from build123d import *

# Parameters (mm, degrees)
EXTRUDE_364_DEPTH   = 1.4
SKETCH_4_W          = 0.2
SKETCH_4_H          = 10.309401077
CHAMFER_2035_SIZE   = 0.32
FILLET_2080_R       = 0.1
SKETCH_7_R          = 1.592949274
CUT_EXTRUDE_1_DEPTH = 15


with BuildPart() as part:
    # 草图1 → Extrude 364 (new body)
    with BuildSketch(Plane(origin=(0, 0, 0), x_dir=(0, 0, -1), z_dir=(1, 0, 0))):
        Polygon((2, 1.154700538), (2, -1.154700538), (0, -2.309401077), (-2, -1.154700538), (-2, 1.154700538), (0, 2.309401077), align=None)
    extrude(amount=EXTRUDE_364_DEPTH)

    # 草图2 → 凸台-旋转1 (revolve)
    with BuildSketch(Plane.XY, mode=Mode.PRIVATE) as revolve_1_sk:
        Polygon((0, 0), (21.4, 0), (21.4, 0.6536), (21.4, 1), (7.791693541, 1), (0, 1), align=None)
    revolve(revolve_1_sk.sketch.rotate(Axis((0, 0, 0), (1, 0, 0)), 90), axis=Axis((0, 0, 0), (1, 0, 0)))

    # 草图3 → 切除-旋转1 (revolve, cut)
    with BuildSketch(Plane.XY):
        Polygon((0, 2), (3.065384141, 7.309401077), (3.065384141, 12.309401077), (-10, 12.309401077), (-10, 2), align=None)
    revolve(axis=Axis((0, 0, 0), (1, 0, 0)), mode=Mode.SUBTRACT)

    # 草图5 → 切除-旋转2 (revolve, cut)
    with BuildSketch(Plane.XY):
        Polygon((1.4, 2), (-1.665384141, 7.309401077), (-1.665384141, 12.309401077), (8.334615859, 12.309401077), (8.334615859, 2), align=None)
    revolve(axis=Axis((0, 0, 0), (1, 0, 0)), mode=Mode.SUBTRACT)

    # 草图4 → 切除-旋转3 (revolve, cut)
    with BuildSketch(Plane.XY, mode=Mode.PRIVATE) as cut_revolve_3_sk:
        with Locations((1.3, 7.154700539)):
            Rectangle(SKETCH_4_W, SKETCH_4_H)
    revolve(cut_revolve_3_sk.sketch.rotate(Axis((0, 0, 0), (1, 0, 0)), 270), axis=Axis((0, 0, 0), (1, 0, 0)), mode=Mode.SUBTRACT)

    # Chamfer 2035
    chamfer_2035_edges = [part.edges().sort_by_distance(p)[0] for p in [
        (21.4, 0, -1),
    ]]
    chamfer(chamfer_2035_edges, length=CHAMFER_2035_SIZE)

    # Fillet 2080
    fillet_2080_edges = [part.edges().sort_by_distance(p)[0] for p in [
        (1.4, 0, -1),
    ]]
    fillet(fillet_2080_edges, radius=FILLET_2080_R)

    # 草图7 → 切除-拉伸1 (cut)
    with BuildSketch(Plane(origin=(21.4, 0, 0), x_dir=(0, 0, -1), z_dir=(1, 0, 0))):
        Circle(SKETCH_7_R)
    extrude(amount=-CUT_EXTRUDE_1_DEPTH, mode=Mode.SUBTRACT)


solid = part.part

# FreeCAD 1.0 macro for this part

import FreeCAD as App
import Part
import Sketcher

V = App.Vector
Q = App.Units.Quantity


def edges_at(feature, points):
    """Names of the edges that pass closest to the given points."""
    edges = feature.Shape.Edges
    near = lambda p: min(range(len(edges)), key=lambda i: edges[i].distToShape(Part.Vertex(*p))[0])
    return sorted({f"Edge{near(p) + 1}" for p in points})

doc = App.newDocument("Part")
body = doc.addObject("PartDesign::Body", "Body")

sketch1 = body.newObject("Sketcher::SketchObject", "Sketch")
sketch1.AttachmentSupport = (doc.getObject("YZ_Plane"), [""])
sketch1.MapMode = "FlatFace"
sketch1.addGeometry([
    Part.LineSegment(V(-1.154701, -2, 0), V(1.154701, -2, 0)),
    Part.LineSegment(V(1.154701, -2, 0), V(2.309401, 0, 0)),
    Part.LineSegment(V(2.309401, 0, 0), V(1.154701, 2, 0)),
    Part.LineSegment(V(1.154701, 2, 0), V(-1.154701, 2, 0)),
    Part.LineSegment(V(-1.154701, 2, 0), V(-2.309401, 0, 0)),
    Part.LineSegment(V(-2.309401, 0, 0), V(-1.154701, -2, 0)),
], False)
sketch1.addConstraint([
    Sketcher.Constraint("Coincident", 0, 2, 1, 1),
    Sketcher.Constraint("Coincident", 1, 2, 2, 1),
    Sketcher.Constraint("Coincident", 2, 2, 3, 1),
    Sketcher.Constraint("Coincident", 3, 2, 4, 1),
    Sketcher.Constraint("Coincident", 4, 2, 5, 1),
    Sketcher.Constraint("Coincident", 5, 2, 0, 1),
    Sketcher.Constraint("Horizontal", 0),
    Sketcher.Constraint("Horizontal", 3),
    Sketcher.Constraint("Symmetric", 0, 2, 3, 2, -1, 1),
    Sketcher.Constraint("Symmetric", 1, 2, 4, 2, -1, 1),
    Sketcher.Constraint("PointOnObject", 1, 2, -1),
    Sketcher.Constraint("Parallel", 2, 5),
    Sketcher.Constraint("Vertical", 0, 2, 2, 2),
    Sketcher.Constraint("Angle", 1, Q("60 deg")),
    Sketcher.Constraint("DistanceY", 0, 2, -1, 1, 2.0),
    Sketcher.Constraint("DistanceX", 0, 1, 0, 2, 2.309401),
])
pad1 = body.newObject("PartDesign::Pad", "Pad")
pad1.Profile = sketch1
pad1.Length = 1.4

sketch2 = body.newObject("Sketcher::SketchObject", "Sketch001")
sketch2.AttachmentSupport = (doc.getObject("XY_Plane"), [""])
sketch2.MapMode = "FlatFace"
sketch2.addGeometry([
    Part.LineSegment(V(0, 0, 0), V(21.4, 0, 0)),
    Part.LineSegment(V(21.4, 0, 0), V(21.4, 1, 0)),
    Part.LineSegment(V(21.4, 1, 0), V(0, 1, 0)),
    Part.LineSegment(V(0, 1, 0), V(0, 0, 0)),
], False)
sketch2.addConstraint([
    Sketcher.Constraint("Coincident", 0, 2, 1, 1),
    Sketcher.Constraint("Coincident", 1, 2, 2, 1),
    Sketcher.Constraint("Coincident", 2, 2, 3, 1),
    Sketcher.Constraint("Coincident", 3, 2, 0, 1),
    Sketcher.Constraint("Horizontal", 0),
    Sketcher.Constraint("Vertical", 1),
    Sketcher.Constraint("Horizontal", 2),
    Sketcher.Constraint("Vertical", 3),
    Sketcher.Constraint("Coincident", 3, 2, -1, 1),
    Sketcher.Constraint("DistanceY", 1, 1, 1, 2, 1.0),
    Sketcher.Constraint("DistanceX", 0, 1, 0, 2, 21.4),
])
revolution = body.newObject("PartDesign::Revolution", "Revolution")
revolution.Profile = sketch2
revolution.ReferenceAxis = (sketch2, ["H_Axis"])
revolution.Angle = 360

sketch3 = body.newObject("Sketcher::SketchObject", "Sketch002")
sketch3.AttachmentSupport = (doc.getObject("XY_Plane"), [""])
sketch3.MapMode = "FlatFace"
sketch3.addGeometry([
    Part.LineSegment(V(0, 2, 0), V(3.065384, 7.309401, 0)),
    Part.LineSegment(V(3.065384, 7.309401, 0), V(3.065384, 12.309401, 0)),
    Part.LineSegment(V(3.065384, 12.309401, 0), V(-10, 12.309401, 0)),
    Part.LineSegment(V(-10, 12.309401, 0), V(-10, 2, 0)),
    Part.LineSegment(V(-10, 2, 0), V(0, 2, 0)),
], False)
sketch3.addConstraint([
    Sketcher.Constraint("Coincident", 0, 2, 1, 1),
    Sketcher.Constraint("Coincident", 1, 2, 2, 1),
    Sketcher.Constraint("Coincident", 2, 2, 3, 1),
    Sketcher.Constraint("Coincident", 3, 2, 4, 1),
    Sketcher.Constraint("Coincident", 4, 2, 0, 1),
    Sketcher.Constraint("Vertical", 1),
    Sketcher.Constraint("Horizontal", 2),
    Sketcher.Constraint("Vertical", 3),
    Sketcher.Constraint("Horizontal", 4),
    Sketcher.Constraint("PointOnObject", 4, 2, -2),
    Sketcher.Constraint("DistanceX", 4, 1, 4, 2, 10.0),
    Sketcher.Constraint("DistanceY", 1, 1, 1, 2, 5.0),
    Sketcher.Constraint("Angle", 0, Q("60 deg")),
    Sketcher.Constraint("DistanceY", -1, 1, 3, 2, 2.0),
    Sketcher.Constraint("DistanceY", 3, 2, 3, 1, 10.309401),
])
groove = body.newObject("PartDesign::Groove", "Groove")
groove.Profile = sketch3
groove.ReferenceAxis = (sketch3, ["H_Axis"])
groove.Angle = 360

sketch4 = body.newObject("Sketcher::SketchObject", "Sketch003")
sketch4.AttachmentSupport = (doc.getObject("XY_Plane"), [""])
sketch4.MapMode = "FlatFace"
sketch4.addGeometry([
    Part.LineSegment(V(-1.665384, 7.309401, 0), V(1.4, 2, 0)),
    Part.LineSegment(V(1.4, 2, 0), V(8.334616, 2, 0)),
    Part.LineSegment(V(8.334616, 2, 0), V(8.334616, 12.309401, 0)),
    Part.LineSegment(V(8.334616, 12.309401, 0), V(-1.665384, 12.309401, 0)),
    Part.LineSegment(V(-1.665384, 12.309401, 0), V(-1.665384, 7.309401, 0)),
], False)
sketch4.addConstraint([
    Sketcher.Constraint("Coincident", 0, 2, 1, 1),
    Sketcher.Constraint("Coincident", 1, 2, 2, 1),
    Sketcher.Constraint("Coincident", 2, 2, 3, 1),
    Sketcher.Constraint("Coincident", 3, 2, 4, 1),
    Sketcher.Constraint("Coincident", 4, 2, 0, 1),
    Sketcher.Constraint("Horizontal", 1),
    Sketcher.Constraint("Vertical", 2),
    Sketcher.Constraint("Horizontal", 3),
    Sketcher.Constraint("Vertical", 4),
    Sketcher.Constraint("DistanceX", 3, 2, 3, 1, 10.0),
    Sketcher.Constraint("DistanceY", 4, 2, 4, 1, 5.0),
    Sketcher.Constraint("Angle", 0, Q("-60 deg")),
    Sketcher.Constraint("DistanceY", -1, 1, 0, 2, 2.0),
    Sketcher.Constraint("DistanceX", -1, 1, 0, 2, 1.4),
    Sketcher.Constraint("DistanceY", 2, 1, 2, 2, 10.309401),
])
groove2 = body.newObject("PartDesign::Groove", "Groove001")
groove2.Profile = sketch4
groove2.ReferenceAxis = (sketch4, ["H_Axis"])
groove2.Angle = 360

sketch5 = body.newObject("Sketcher::SketchObject", "Sketch004")
sketch5.AttachmentSupport = (doc.getObject("XY_Plane"), [""])
sketch5.MapMode = "FlatFace"
sketch5.addGeometry([
    Part.LineSegment(V(1.2, 12.309401, 0), V(1.2, 2, 0)),
    Part.LineSegment(V(1.2, 2, 0), V(1.4, 2, 0)),
    Part.LineSegment(V(1.4, 2, 0), V(1.4, 12.309401, 0)),
    Part.LineSegment(V(1.4, 12.309401, 0), V(1.2, 12.309401, 0)),
], False)
sketch5.addConstraint([
    Sketcher.Constraint("Coincident", 0, 2, 1, 1),
    Sketcher.Constraint("Coincident", 1, 2, 2, 1),
    Sketcher.Constraint("Coincident", 2, 2, 3, 1),
    Sketcher.Constraint("Coincident", 3, 2, 0, 1),
    Sketcher.Constraint("Vertical", 0),
    Sketcher.Constraint("Horizontal", 1),
    Sketcher.Constraint("Vertical", 2),
    Sketcher.Constraint("Horizontal", 3),
    Sketcher.Constraint("DistanceX", 1, 1, 1, 2, 0.2),
    Sketcher.Constraint("DistanceY", -1, 1, 0, 2, 2.0),
    Sketcher.Constraint("DistanceX", -1, 1, 0, 2, 1.2),
    Sketcher.Constraint("DistanceY", 0, 2, 0, 1, 10.309401),
])
groove3 = body.newObject("PartDesign::Groove", "Groove002")
groove3.Profile = sketch5
groove3.ReferenceAxis = (sketch5, ["H_Axis"])
groove3.Angle = 360
doc.recompute()

chamfer = body.newObject("PartDesign::Chamfer", "Chamfer")
chamfer.Base = (groove3, edges_at(groove3, [(21.4, 0, -1)]))
chamfer.Size = 0.32
doc.recompute()

fillet = body.newObject("PartDesign::Fillet", "Fillet")
fillet.Base = (chamfer, edges_at(chamfer, [(1.4, 0, -1)]))
fillet.Radius = 0.1

sketch6 = body.newObject("Sketcher::SketchObject", "Sketch005")
sketch6.AttachmentSupport = (doc.getObject("YZ_Plane"), [""])
sketch6.MapMode = "FlatFace"
sketch6.AttachmentOffset = App.Placement(V(0, 0, 21.4), App.Rotation())
sketch6.addGeometry(Part.Circle(V(0, 0, 0), V(0, 0, 1), 1.592949), False)
sketch6.addConstraint([
    Sketcher.Constraint("Coincident", 0, 3, -1, 1),
    Sketcher.Constraint("Diameter", 0, 3.185899),
])
pocket1 = body.newObject("PartDesign::Pocket", "Pocket")
pocket1.Profile = sketch6
pocket1.Length = 15

doc.recompute()
